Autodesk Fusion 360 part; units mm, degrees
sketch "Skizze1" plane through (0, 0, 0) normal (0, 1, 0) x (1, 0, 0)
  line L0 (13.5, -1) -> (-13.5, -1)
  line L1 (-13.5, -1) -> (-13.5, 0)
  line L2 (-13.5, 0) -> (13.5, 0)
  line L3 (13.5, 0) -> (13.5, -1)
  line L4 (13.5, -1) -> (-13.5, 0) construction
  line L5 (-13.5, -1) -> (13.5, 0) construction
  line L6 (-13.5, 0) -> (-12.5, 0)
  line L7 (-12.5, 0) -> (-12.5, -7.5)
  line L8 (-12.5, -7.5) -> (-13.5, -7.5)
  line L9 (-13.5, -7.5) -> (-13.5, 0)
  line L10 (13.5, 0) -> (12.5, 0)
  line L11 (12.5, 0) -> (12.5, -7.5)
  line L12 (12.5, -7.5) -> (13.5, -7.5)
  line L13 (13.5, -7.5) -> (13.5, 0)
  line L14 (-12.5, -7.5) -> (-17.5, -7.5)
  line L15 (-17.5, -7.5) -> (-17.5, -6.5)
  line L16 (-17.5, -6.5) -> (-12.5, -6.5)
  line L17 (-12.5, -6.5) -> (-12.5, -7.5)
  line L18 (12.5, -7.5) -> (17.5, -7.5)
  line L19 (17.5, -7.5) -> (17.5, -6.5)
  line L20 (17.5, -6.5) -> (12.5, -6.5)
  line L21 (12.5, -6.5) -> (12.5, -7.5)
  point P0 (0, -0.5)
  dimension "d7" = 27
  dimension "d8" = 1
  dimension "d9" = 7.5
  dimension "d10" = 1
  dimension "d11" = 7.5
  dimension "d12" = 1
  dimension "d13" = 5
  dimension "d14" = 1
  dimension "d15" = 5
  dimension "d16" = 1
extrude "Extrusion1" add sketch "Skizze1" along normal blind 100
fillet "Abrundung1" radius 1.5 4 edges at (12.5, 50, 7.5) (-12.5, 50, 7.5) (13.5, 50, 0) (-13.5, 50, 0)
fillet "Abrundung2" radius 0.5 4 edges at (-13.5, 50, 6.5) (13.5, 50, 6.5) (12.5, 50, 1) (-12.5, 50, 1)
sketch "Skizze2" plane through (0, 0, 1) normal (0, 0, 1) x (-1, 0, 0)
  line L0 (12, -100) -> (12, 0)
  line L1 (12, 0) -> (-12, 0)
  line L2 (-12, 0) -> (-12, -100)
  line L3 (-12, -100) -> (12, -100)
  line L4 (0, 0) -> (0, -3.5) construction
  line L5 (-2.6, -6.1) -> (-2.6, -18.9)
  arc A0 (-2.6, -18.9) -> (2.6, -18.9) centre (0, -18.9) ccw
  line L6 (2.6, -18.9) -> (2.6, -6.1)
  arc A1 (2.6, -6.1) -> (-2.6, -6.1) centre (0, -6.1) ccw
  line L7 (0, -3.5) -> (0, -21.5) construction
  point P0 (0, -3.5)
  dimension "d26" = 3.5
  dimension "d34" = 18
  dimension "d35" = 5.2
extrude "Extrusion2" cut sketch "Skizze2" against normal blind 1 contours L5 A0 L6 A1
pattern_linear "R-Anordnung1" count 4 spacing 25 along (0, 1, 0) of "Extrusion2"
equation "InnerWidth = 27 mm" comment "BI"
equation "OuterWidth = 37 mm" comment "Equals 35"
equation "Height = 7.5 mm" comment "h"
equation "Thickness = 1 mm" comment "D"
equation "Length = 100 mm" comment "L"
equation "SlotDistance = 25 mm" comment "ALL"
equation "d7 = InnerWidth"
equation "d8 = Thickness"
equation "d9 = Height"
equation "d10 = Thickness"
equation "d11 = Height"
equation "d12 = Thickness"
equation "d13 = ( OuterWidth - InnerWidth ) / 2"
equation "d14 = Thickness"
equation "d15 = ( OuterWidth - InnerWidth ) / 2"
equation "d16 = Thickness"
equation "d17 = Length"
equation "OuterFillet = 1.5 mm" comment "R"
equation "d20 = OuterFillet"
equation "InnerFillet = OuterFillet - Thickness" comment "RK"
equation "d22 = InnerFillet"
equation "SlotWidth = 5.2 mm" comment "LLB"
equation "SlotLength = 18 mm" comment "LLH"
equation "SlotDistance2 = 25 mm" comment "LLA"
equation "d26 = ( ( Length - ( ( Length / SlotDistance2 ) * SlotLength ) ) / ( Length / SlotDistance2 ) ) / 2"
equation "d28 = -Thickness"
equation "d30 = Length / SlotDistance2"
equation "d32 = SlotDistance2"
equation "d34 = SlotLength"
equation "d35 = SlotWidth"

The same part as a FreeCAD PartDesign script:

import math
import FreeCAD as App
import Part
import Sketcher

V = App.Vector
Q = App.Units.Quantity


def edges_at(feature, points):
    """Names of the edges that pass closest to the given points."""
    edges = feature.Shape.Edges
    near = lambda p: min(range(len(edges)), key=lambda i: edges[i].distToShape(Part.Vertex(*p))[0])
    return sorted({f"Edge{near(p) + 1}" for p in points})

doc = App.newDocument("Part")
params = doc.addObject("Spreadsheet::Sheet", "Params")
for row, (alias, value) in enumerate([
    ("sketch1_width", "27 mm"),
    ("sketch1_width2", "5 mm"),
    ("sketch1_height", "1 mm"),
    ("pad1_length", "100 mm"),
    ("fillet_radius", "1.5 mm"),
    ("fillet2_radius", "0.5 mm"),
    ("sketch2_radius", "2.6 mm"),
    ("sketch2_height", "12.8 mm"),
    ("pocket1_length", "1 mm"),
    ("linearpattern_pitch", "25 mm"),
], start=1):
    params.set(f"A{row}", alias)
    params.set(f"B{row}", "=" + value)
    params.setAlias(f"B{row}", alias)

body = doc.addObject("PartDesign::Body", "Body")

sketch1 = body.newObject("Sketcher::SketchObject", "Sketch")
sketch1.AttachmentSupport = (doc.getObject("XZ_Plane"), [""])
sketch1.MapMode = "FlatFace"
sketch1.addGeometry(Part.LineSegment(V(13.5, 6.5, 0), V(13.5, 0, 0)), False)
sketch1.addGeometry(Part.LineSegment(V(13.5, 0, 0), V(-13.5, 0, 0)), False)
sketch1.addGeometry(Part.LineSegment(V(-13.5, 0, 0), V(-13.5, 6.5, 0)), False)
sketch1.addGeometry(Part.LineSegment(V(-13.5, 6.5, 0), V(-17.5, 6.5, 0)), False)
sketch1.addGeometry(Part.LineSegment(V(-17.5, 6.5, 0), V(-17.5, 7.5, 0)), False)
sketch1.addGeometry(Part.LineSegment(V(-17.5, 7.5, 0), V(-12.5, 7.5, 0)), False)
sketch1.addGeometry(Part.LineSegment(V(-12.5, 7.5, 0), V(-12.5, 1, 0)), False)
sketch1.addGeometry(Part.LineSegment(V(-12.5, 1, 0), V(12.5, 1, 0)), False)
sketch1.addGeometry(Part.LineSegment(V(12.5, 1, 0), V(12.5, 7.5, 0)), False)
sketch1.addGeometry(Part.LineSegment(V(12.5, 7.5, 0), V(17.5, 7.5, 0)), False)
sketch1.addGeometry(Part.LineSegment(V(17.5, 7.5, 0), V(17.5, 6.5, 0)), False)
sketch1.addGeometry(Part.LineSegment(V(17.5, 6.5, 0), V(13.5, 6.5, 0)), False)
sketch1.addConstraint(Sketcher.Constraint("Coincident", 0, 2, 1, 1))
sketch1.addConstraint(Sketcher.Constraint("Coincident", 1, 2, 2, 1))
sketch1.addConstraint(Sketcher.Constraint("Coincident", 2, 2, 3, 1))
sketch1.addConstraint(Sketcher.Constraint("Coincident", 3, 2, 4, 1))
sketch1.addConstraint(Sketcher.Constraint("Coincident", 4, 2, 5, 1))
sketch1.addConstraint(Sketcher.Constraint("Coincident", 5, 2, 6, 1))
sketch1.addConstraint(Sketcher.Constraint("Coincident", 6, 2, 7, 1))
sketch1.addConstraint(Sketcher.Constraint("Coincident", 7, 2, 8, 1))
sketch1.addConstraint(Sketcher.Constraint("Coincident", 8, 2, 9, 1))
sketch1.addConstraint(Sketcher.Constraint("Coincident", 9, 2, 10, 1))
sketch1.addConstraint(Sketcher.Constraint("Coincident", 10, 2, 11, 1))
sketch1.addConstraint(Sketcher.Constraint("Coincident", 11, 2, 0, 1))
sketch1.addConstraint(Sketcher.Constraint("Vertical", 0))
sketch1.addConstraint(Sketcher.Constraint("Horizontal", 1))
sketch1.addConstraint(Sketcher.Constraint("Vertical", 2))
sketch1.addConstraint(Sketcher.Constraint("Horizontal", 3))
sketch1.addConstraint(Sketcher.Constraint("Vertical", 4))
sketch1.addConstraint(Sketcher.Constraint("Horizontal", 5))
sketch1.addConstraint(Sketcher.Constraint("Vertical", 6))
sketch1.addConstraint(Sketcher.Constraint("Horizontal", 7))
sketch1.addConstraint(Sketcher.Constraint("Vertical", 8))
sketch1.addConstraint(Sketcher.Constraint("Horizontal", 9))
sketch1.addConstraint(Sketcher.Constraint("Vertical", 10))
sketch1.addConstraint(Sketcher.Constraint("Horizontal", 11))
sketch1.addConstraint(Sketcher.Constraint("Symmetric", 0, 2, 1, 2, -1, 1))
sketch1.addConstraint(Sketcher.Constraint("Symmetric", 5, 2, 8, 2, -2))
sketch1.addConstraint(Sketcher.Constraint("Symmetric", 3, 2, 10, 2, -2))
sketch1.addConstraint(Sketcher.Constraint("Equal", 2, 6))
sketch1.addConstraint(Sketcher.Constraint("DistanceX", 1, 2, 1, 1, Q("27 mm")))
sketch1.addConstraint(Sketcher.Constraint("DistanceX", 5, 1, 5, 2, Q("5 mm")))
sketch1.addConstraint(Sketcher.Constraint("DistanceY", 4, 1, 4, 2, Q("1 mm")))
sketch1.addConstraint(Sketcher.Constraint("DistanceX", 2, 2, 5, 2, Q("1 mm")))
sketch1.addConstraint(Sketcher.Constraint("DistanceY", -1, 1, 4, 2, Q("7.5 mm")))
sketch1.setExpression("Constraints[28]", "Params.sketch1_width")
sketch1.setExpression("Constraints[29]", "Params.sketch1_width2")
sketch1.setExpression("Constraints[30]", "Params.sketch1_height")
pad1 = body.newObject("PartDesign::Pad", "Pad")
pad1.Profile = sketch1
pad1.setExpression("Length", "Params.pad1_length")
pad1.Reversed = True
doc.recompute()

fillet = body.newObject("PartDesign::Fillet", "Fillet")
fillet.Base = (pad1, edges_at(pad1, [
    (12.5, 50, 7.5),
    (-12.5, 50, 7.5),
    (13.5, 50, 0),
    (-13.5, 50, 0),
]))
fillet.setExpression("Radius", "Params.fillet_radius")
doc.recompute()

fillet2 = body.newObject("PartDesign::Fillet", "Fillet001")
fillet2.Base = (fillet, edges_at(fillet, [
    (-13.5, 50, 6.5),
    (13.5, 50, 6.5),
    (12.5, 50, 1),
    (-12.5, 50, 1),
]))
fillet2.setExpression("Radius", "Params.fillet2_radius")

sketch2 = body.newObject("Sketcher::SketchObject", "Sketch001")
sketch2.AttachmentSupport = (doc.getObject("XY_Plane"), [""])
sketch2.MapMode = "FlatFace"
sketch2.AttachmentOffset = App.Placement(V(0, 0, 1), App.Rotation())
sketch2.addGeometry(Part.ArcOfCircle(Part.Circle(V(0, 6.1, 0), V(0, 0, 1), 2.6), math.radians(180), math.radians(360)), False)
sketch2.addGeometry(Part.LineSegment(V(2.6, 6.1, 0), V(2.6, 18.9, 0)), False)
sketch2.addGeometry(Part.ArcOfCircle(Part.Circle(V(0, 18.9, 0), V(0, 0, 1), 2.6), math.radians(0), math.radians(180)), False)
sketch2.addGeometry(Part.LineSegment(V(-2.6, 18.9, 0), V(-2.6, 6.1, 0)), False)
sketch2.addConstraint(Sketcher.Constraint("Tangent", 0, 2, 1, 1))
sketch2.addConstraint(Sketcher.Constraint("Tangent", 1, 2, 2, 1))
sketch2.addConstraint(Sketcher.Constraint("Tangent", 2, 2, 3, 1))
sketch2.addConstraint(Sketcher.Constraint("Tangent", 3, 2, 0, 1))
sketch2.addConstraint(Sketcher.Constraint("Vertical", 1))
sketch2.addConstraint(Sketcher.Constraint("Vertical", 3))
sketch2.addConstraint(Sketcher.Constraint("PointOnObject", 0, 3, -2))
sketch2.addConstraint(Sketcher.Constraint("Radius", 0, Q("2.6 mm")))
sketch2.addConstraint(Sketcher.Constraint("DistanceY", 1, 1, 1, 2, Q("12.8 mm")))
sketch2.addConstraint(Sketcher.Constraint("DistanceY", -1, 1, 0, 3, Q("6.1 mm")))
sketch2.setExpression("Constraints[7]", "Params.sketch2_radius")
sketch2.setExpression("Constraints[8]", "Params.sketch2_height")
pocket1 = body.newObject("PartDesign::Pocket", "Pocket")
pocket1.Profile = sketch2
pocket1.setExpression("Length", "Params.pocket1_length")
doc.recompute()

linearpattern = body.newObject("PartDesign::LinearPattern", "LinearPattern")
linearpattern.Originals = [pocket1]
linearpattern.Direction = (doc.getObject("Y_Axis"), [""])
linearpattern.Mode = "offset"
linearpattern.setExpression("Offset", "Params.linearpattern_pitch")
linearpattern.Occurrences = 4
body.Tip = linearpattern

doc.recompute()
